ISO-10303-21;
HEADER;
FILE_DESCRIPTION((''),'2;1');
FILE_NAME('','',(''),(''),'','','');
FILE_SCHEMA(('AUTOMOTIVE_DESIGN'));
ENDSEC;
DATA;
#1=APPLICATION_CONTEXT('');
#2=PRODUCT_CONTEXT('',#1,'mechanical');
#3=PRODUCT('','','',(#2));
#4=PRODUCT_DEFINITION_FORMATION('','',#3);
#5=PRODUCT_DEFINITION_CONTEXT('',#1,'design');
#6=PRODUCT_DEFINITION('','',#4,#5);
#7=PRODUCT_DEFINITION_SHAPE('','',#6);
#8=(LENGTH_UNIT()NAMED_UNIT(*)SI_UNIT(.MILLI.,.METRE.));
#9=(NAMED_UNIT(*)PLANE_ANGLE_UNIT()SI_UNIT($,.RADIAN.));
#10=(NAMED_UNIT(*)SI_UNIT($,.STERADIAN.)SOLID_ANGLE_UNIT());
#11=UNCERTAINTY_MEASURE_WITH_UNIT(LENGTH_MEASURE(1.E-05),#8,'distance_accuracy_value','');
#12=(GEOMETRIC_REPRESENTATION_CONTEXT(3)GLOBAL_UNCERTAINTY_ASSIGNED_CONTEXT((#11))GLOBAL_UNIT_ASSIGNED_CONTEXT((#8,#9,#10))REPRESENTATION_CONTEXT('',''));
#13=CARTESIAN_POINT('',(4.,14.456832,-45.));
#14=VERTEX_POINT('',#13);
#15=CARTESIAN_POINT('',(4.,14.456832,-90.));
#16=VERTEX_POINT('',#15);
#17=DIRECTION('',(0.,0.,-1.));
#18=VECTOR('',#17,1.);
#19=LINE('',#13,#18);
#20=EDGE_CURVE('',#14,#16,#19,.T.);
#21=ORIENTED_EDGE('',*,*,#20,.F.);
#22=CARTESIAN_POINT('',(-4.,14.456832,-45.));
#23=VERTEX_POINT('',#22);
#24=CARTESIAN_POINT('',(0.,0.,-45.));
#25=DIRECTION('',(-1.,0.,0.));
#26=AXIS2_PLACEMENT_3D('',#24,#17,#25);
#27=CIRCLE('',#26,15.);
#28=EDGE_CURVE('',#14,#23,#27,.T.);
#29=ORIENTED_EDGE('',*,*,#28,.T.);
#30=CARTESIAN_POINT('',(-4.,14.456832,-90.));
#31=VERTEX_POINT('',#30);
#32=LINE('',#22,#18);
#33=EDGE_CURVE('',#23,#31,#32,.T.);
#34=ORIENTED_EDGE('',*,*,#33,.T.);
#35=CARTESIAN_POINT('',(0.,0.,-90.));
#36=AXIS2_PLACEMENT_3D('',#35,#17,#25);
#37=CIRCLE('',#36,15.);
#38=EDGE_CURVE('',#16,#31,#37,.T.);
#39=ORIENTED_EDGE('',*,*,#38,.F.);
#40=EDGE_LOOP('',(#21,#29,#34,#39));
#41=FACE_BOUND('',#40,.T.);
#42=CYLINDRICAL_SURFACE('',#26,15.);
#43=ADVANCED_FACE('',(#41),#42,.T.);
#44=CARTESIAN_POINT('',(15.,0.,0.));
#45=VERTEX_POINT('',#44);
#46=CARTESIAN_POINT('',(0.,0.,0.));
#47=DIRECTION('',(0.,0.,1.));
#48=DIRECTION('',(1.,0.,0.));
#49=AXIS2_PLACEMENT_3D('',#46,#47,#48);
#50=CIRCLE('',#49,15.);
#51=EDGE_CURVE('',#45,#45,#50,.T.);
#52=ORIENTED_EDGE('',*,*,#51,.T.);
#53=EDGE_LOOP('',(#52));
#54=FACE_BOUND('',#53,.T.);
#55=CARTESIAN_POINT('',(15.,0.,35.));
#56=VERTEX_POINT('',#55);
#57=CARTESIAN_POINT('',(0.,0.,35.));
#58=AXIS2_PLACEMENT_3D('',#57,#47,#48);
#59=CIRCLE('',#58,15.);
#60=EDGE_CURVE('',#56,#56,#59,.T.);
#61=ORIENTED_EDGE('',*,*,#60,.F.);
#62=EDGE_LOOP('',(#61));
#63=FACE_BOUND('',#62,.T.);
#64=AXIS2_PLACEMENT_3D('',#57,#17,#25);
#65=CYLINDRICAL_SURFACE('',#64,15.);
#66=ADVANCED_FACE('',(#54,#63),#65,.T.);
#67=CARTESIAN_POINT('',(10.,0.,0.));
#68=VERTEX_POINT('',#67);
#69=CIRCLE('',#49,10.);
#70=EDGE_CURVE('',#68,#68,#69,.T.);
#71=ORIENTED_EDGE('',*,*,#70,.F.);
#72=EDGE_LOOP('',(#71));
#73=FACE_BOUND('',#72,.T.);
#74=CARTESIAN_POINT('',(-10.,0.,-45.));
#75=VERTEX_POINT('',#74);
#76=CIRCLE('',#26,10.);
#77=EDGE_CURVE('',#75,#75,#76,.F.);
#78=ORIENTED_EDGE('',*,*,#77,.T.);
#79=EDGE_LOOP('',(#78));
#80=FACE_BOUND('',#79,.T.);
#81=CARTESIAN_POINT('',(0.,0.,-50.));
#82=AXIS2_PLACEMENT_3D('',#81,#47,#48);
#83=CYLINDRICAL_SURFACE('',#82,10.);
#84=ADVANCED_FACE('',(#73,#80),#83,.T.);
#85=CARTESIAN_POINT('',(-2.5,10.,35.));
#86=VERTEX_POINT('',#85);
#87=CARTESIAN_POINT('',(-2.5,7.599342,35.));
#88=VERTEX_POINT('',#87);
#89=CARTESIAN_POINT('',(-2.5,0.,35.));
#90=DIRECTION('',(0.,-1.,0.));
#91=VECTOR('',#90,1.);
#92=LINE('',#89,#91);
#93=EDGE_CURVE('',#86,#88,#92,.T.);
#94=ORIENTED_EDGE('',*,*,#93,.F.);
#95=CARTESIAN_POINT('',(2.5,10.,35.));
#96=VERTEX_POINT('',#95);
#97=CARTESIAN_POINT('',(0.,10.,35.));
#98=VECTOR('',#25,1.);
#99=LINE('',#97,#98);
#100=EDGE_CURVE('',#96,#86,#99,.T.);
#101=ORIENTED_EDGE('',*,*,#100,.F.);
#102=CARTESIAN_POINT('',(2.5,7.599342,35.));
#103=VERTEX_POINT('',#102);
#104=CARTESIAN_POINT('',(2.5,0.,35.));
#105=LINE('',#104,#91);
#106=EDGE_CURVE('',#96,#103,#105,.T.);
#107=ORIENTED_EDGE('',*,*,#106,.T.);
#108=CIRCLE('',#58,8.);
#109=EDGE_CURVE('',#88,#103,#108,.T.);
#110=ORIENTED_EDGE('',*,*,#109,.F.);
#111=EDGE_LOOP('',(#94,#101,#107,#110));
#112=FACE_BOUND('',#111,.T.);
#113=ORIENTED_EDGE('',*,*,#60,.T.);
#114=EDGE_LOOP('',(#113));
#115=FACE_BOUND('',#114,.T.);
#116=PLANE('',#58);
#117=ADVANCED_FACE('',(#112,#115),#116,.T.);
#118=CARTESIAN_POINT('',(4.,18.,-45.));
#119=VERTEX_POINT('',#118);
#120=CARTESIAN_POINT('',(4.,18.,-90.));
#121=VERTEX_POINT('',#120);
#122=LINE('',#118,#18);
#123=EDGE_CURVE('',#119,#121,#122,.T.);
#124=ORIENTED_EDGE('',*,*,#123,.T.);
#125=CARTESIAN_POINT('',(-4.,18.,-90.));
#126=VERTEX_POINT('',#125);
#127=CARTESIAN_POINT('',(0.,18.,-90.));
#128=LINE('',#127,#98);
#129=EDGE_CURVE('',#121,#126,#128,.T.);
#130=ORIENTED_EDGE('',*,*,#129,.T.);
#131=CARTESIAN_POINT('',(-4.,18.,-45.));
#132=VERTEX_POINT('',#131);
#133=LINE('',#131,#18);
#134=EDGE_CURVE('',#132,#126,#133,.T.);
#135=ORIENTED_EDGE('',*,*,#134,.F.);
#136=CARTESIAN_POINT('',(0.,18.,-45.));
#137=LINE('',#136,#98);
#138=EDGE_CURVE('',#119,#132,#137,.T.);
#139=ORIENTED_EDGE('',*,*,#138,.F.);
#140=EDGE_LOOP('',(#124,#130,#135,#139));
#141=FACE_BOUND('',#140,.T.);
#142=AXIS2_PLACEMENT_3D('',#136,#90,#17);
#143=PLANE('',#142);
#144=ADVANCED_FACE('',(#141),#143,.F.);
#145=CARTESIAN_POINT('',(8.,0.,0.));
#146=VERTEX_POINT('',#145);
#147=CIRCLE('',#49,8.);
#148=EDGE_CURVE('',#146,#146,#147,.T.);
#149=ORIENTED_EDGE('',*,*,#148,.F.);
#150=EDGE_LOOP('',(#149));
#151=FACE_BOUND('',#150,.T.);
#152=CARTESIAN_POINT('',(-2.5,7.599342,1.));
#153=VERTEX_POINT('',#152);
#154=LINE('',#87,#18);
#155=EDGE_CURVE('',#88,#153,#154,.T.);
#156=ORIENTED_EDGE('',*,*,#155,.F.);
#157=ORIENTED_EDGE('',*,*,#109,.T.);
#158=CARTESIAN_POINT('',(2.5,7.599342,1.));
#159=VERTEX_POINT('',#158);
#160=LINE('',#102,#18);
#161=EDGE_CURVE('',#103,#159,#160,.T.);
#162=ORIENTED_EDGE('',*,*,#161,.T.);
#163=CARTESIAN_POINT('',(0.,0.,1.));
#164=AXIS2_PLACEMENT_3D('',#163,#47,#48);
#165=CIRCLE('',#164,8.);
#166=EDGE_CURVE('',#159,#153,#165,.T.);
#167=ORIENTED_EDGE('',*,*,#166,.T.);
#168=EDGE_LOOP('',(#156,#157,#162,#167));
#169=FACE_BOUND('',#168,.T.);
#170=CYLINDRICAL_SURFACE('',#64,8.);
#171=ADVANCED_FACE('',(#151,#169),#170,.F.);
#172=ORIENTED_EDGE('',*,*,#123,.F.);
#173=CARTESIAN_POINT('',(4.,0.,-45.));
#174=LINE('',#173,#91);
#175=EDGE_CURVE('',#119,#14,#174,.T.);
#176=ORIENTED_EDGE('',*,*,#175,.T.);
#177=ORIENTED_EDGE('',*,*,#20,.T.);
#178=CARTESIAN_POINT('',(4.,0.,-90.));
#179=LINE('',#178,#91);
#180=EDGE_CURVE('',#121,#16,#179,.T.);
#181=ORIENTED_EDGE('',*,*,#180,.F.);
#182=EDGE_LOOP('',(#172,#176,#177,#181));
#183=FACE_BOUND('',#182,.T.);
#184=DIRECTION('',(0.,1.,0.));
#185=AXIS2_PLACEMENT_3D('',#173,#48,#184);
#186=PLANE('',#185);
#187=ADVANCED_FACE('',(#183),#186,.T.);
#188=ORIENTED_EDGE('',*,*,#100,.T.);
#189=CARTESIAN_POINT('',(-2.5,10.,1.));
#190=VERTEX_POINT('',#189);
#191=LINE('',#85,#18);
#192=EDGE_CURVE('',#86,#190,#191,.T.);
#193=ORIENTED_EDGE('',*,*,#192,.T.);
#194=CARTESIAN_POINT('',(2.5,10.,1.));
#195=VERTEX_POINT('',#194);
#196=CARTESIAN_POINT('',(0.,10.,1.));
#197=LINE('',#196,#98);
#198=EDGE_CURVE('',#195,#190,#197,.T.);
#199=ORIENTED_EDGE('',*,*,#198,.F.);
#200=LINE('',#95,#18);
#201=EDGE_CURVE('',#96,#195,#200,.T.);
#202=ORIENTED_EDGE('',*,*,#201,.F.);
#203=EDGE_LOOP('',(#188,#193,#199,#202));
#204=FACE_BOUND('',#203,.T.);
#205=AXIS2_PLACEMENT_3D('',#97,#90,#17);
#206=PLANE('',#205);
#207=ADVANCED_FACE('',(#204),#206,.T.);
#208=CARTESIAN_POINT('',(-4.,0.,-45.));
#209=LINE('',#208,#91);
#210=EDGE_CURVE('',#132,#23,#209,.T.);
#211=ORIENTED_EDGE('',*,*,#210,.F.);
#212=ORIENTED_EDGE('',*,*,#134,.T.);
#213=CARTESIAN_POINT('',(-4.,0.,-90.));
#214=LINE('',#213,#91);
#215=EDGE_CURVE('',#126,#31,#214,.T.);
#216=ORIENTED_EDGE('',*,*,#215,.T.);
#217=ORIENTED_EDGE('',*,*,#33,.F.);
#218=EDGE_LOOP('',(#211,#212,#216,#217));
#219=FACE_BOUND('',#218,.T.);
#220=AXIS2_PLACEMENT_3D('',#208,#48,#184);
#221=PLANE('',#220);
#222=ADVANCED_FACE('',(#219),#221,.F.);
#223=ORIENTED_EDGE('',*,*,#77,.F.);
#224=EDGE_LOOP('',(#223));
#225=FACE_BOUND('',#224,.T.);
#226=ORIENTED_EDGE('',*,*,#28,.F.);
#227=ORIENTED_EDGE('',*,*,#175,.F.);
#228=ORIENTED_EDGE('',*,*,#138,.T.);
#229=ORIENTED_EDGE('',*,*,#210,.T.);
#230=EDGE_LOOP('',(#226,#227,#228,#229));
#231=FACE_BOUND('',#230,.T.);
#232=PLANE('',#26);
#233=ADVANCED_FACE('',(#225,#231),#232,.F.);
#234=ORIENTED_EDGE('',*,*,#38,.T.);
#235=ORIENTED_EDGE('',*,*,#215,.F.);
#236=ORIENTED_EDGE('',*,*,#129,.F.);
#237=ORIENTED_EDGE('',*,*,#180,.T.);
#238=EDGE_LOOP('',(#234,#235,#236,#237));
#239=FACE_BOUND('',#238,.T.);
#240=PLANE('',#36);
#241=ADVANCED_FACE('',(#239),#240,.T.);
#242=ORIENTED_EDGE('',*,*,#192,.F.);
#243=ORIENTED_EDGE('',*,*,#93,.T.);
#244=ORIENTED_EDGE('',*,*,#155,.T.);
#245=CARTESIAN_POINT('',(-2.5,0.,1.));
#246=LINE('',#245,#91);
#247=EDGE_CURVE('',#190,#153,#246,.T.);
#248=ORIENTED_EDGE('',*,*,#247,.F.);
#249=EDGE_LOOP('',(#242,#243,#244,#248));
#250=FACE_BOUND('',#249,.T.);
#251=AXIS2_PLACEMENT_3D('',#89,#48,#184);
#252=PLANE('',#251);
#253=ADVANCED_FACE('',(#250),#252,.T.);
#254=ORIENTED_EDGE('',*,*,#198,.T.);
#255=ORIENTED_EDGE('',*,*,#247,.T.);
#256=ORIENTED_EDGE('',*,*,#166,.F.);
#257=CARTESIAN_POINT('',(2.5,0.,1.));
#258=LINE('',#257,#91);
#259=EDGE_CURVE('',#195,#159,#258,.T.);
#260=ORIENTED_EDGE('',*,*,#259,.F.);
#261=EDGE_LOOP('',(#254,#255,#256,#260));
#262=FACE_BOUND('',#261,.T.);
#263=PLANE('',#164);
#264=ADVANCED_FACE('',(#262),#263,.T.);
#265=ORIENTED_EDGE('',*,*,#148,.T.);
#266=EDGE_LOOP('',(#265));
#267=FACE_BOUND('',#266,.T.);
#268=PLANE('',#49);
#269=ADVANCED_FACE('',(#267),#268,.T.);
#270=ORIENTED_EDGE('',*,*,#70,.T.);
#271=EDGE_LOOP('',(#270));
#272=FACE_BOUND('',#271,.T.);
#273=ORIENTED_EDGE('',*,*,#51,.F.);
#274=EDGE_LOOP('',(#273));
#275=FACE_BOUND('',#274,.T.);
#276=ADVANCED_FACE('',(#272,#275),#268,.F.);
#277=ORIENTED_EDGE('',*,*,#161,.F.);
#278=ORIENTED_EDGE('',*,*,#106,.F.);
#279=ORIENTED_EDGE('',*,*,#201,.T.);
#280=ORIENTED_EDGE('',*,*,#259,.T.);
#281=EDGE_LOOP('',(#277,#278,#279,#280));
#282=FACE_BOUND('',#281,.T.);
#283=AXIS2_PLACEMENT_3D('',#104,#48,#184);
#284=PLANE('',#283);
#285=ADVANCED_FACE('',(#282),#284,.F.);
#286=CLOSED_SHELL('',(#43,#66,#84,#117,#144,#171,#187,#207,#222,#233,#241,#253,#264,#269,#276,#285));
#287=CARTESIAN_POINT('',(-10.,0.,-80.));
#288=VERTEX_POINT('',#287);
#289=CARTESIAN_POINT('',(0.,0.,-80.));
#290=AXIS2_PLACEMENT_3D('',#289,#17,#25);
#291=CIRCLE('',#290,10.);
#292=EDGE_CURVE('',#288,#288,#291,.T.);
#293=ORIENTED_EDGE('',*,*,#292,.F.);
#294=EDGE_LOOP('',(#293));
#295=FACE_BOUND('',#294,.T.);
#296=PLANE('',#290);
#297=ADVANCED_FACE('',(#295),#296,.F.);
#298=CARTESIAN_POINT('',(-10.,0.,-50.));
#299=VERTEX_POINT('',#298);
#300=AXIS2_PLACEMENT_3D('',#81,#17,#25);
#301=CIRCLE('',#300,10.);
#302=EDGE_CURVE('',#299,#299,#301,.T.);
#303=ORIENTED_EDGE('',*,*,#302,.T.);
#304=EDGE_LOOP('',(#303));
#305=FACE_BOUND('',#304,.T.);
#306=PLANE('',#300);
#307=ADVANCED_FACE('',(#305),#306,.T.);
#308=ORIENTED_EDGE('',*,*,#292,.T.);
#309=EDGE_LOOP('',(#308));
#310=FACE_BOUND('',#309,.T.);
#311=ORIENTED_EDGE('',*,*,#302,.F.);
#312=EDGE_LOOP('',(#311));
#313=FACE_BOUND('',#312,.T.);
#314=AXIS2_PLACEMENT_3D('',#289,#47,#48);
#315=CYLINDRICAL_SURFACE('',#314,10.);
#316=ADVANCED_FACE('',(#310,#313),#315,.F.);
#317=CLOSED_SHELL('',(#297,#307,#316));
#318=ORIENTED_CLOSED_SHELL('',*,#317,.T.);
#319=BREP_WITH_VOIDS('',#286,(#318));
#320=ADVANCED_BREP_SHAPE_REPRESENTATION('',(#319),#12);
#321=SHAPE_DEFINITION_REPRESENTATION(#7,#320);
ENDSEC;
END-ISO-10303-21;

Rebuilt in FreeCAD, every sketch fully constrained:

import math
import FreeCAD as App
import Part
import Sketcher

V = App.Vector

doc = App.newDocument("Part")
params = doc.addObject("Spreadsheet::Sheet", "Params")
for row, (alias, value) in enumerate([
    ("sketch1_diameter", "30 mm"),
    ("sketch1_radius", "8 mm"),
    ("sketch1_width", "5 mm"),
    ("pad1_length", "35 mm"),
    ("sketch2_radius", "8 mm"),
    ("sketch2_width", "5 mm"),
    ("pad2_length", "1 mm"),
    ("sketch3_diameter", "20 mm"),
    ("pad3_length", "50 mm"),
    ("sketch4_radius", "15 mm"),
    ("sketch4_width", "8 mm"),
    ("pad4_length", "40 mm"),
    ("pad4_length2", "5 mm"),
    ("sketch5_diameter", "20 mm"),
    ("pocket1_length", "30 mm"),
], start=1):
    params.set(f"A{row}", alias)
    params.set(f"B{row}", "=" + value)
    params.setAlias(f"B{row}", alias)

body = doc.addObject("PartDesign::Body", "Body")

sketch1 = body.newObject("Sketcher::SketchObject", "Sketch")
sketch1.AttachmentSupport = (doc.getObject("XY_Plane"), [""])
sketch1.MapMode = "FlatFace"
sketch1.addGeometry(Part.Circle(V(0, 0, 0), V(0, 0, 1), 15), False)
sketch1.addGeometry(Part.LineSegment(V(-2.5, 7.6, 0), V(-2.5, 10, 0)), False)
sketch1.addGeometry(Part.LineSegment(V(-2.5, 10, 0), V(2.5, 10, 0)), False)
sketch1.addGeometry(Part.LineSegment(V(2.5, 10, 0), V(2.5, 7.6, 0)), False)
sketch1.addGeometry(Part.ArcOfCircle(Part.Circle(V(0, 0, 0), V(0, 0, 1), 8), math.radians(0), math.radians(72)), False)
sketch1.addGeometry(Part.ArcOfCircle(Part.Circle(V(0, 0, 0), V(0, 0, 1), 8), math.radians(108), math.radians(360)), False)
sketch1.addConstraint(Sketcher.Constraint("Coincident", 1, 2, 2, 1))
sketch1.addConstraint(Sketcher.Constraint("Coincident", 2, 2, 3, 1))
sketch1.addConstraint(Sketcher.Constraint("Coincident", 3, 2, 4, 2))
sketch1.addConstraint(Sketcher.Constraint("Tangent", 4, 1, 5, 2))
sketch1.addConstraint(Sketcher.Constraint("Coincident", 5, 1, 1, 1))
sketch1.addConstraint(Sketcher.Constraint("Vertical", 1))
sketch1.addConstraint(Sketcher.Constraint("Horizontal", 2))
sketch1.addConstraint(Sketcher.Constraint("Vertical", 3))
sketch1.addConstraint(Sketcher.Constraint("Coincident", 0, 3, -1, 1))
sketch1.addConstraint(Sketcher.Constraint("Coincident", 4, 3, -1, 1))
sketch1.addConstraint(Sketcher.Constraint("Equal", 4, 5))
sketch1.addConstraint(Sketcher.Constraint("PointOnObject", 4, 1, -1))
sketch1.addConstraint(Sketcher.Constraint("Horizontal", 3, 2, 5, 1))
sketch1.addConstraint(Sketcher.Constraint("Diameter", 0, 30.0))
sketch1.addConstraint(Sketcher.Constraint("Radius", 4, 8.0))
sketch1.addConstraint(Sketcher.Constraint("DistanceX", 2, 1, 2, 2, 5.0))
sketch1.addConstraint(Sketcher.Constraint("DistanceY", -1, 1, 1, 2, 10.0))
sketch1.setExpression("Constraints[13]", "Params.sketch1_diameter")
sketch1.setExpression("Constraints[14]", "Params.sketch1_radius")
sketch1.setExpression("Constraints[15]", "Params.sketch1_width")
pad1 = body.newObject("PartDesign::Pad", "Pad")
pad1.Profile = sketch1
pad1.setExpression("Length", "Params.pad1_length")

sketch2 = body.newObject("Sketcher::SketchObject", "Sketch001")
sketch2.AttachmentSupport = (doc.getObject("XY_Plane"), [""])
sketch2.MapMode = "FlatFace"
sketch2.addGeometry(Part.LineSegment(V(2.5, 7.6, 0), V(2.5, 10, 0)), False)
sketch2.addGeometry(Part.LineSegment(V(2.5, 10, 0), V(-2.5, 10, 0)), False)
sketch2.addGeometry(Part.LineSegment(V(-2.5, 10, 0), V(-2.5, 7.6, 0)), False)
sketch2.addGeometry(Part.ArcOfCircle(Part.Circle(V(0, 0, 0), V(0, 0, 1), 8), math.radians(72), math.radians(108)), False)
sketch2.addConstraint(Sketcher.Constraint("Coincident", 0, 2, 1, 1))
sketch2.addConstraint(Sketcher.Constraint("Coincident", 1, 2, 2, 1))
sketch2.addConstraint(Sketcher.Constraint("Coincident", 2, 2, 3, 2))
sketch2.addConstraint(Sketcher.Constraint("Coincident", 3, 1, 0, 1))
sketch2.addConstraint(Sketcher.Constraint("Vertical", 0))
sketch2.addConstraint(Sketcher.Constraint("Horizontal", 1))
sketch2.addConstraint(Sketcher.Constraint("Vertical", 2))
sketch2.addConstraint(Sketcher.Constraint("Coincident", 3, 3, -1, 1))
sketch2.addConstraint(Sketcher.Constraint("Horizontal", 2, 2, 3, 1))
sketch2.addConstraint(Sketcher.Constraint("Radius", 3, 8.0))
sketch2.addConstraint(Sketcher.Constraint("DistanceX", 1, 2, 1, 1, 5.0))
sketch2.addConstraint(Sketcher.Constraint("DistanceY", -1, 1, 0, 2, 10.0))
sketch2.setExpression("Constraints[9]", "Params.sketch2_radius")
sketch2.setExpression("Constraints[10]", "Params.sketch2_width")
pad2 = body.newObject("PartDesign::Pad", "Pad001")
pad2.Profile = sketch2
pad2.setExpression("Length", "Params.pad2_length")

sketch3 = body.newObject("Sketcher::SketchObject", "Sketch002")
sketch3.AttachmentSupport = (doc.getObject("XY_Plane"), [""])
sketch3.MapMode = "FlatFace"
sketch3.addGeometry(Part.Circle(V(0, 0, 0), V(0, 0, 1), 10), False)
sketch3.addConstraint(Sketcher.Constraint("Coincident", 0, 3, -1, 1))
sketch3.addConstraint(Sketcher.Constraint("Diameter", 0, 20.0))
sketch3.setExpression("Constraints[1]", "Params.sketch3_diameter")
pad3 = body.newObject("PartDesign::Pad", "Pad002")
pad3.Profile = sketch3
pad3.setExpression("Length", "Params.pad3_length")
pad3.Reversed = True

sketch4 = body.newObject("Sketcher::SketchObject", "Sketch003")
sketch4.AttachmentSupport = (doc.getObject("XY_Plane"), [""])
sketch4.MapMode = "FlatFace"
sketch4.AttachmentOffset = App.Placement(V(0, 0, -50), App.Rotation())
sketch4.addGeometry(Part.ArcOfCircle(Part.Circle(V(0, 0, 0), V(0, 0, 1), 15), math.radians(105), math.radians(180)), False)
sketch4.addGeometry(Part.LineSegment(V(-4, 14.5, 0), V(-4, 18, 0)), False)
sketch4.addGeometry(Part.LineSegment(V(-4, 18, 0), V(4, 18, 0)), False)
sketch4.addGeometry(Part.LineSegment(V(4, 18, 0), V(4, 14.5, 0)), False)
sketch4.addGeometry(Part.ArcOfCircle(Part.Circle(V(0, 0, 0), V(0, 0, 1), 15), math.radians(-75), math.radians(75)), False)
sketch4.addGeometry(Part.ArcOfCircle(Part.Circle(V(0, 0, 0), V(0, 0, 1), 15), math.radians(-105), math.radians(-75)), False)
sketch4.addGeometry(Part.ArcOfCircle(Part.Circle(V(0, 0, 0), V(0, 0, 1), 15), math.radians(-180), math.radians(-105)), False)
sketch4.addConstraint(Sketcher.Constraint("Coincident", 0, 1, 1, 1))
sketch4.addConstraint(Sketcher.Constraint("Coincident", 1, 2, 2, 1))
sketch4.addConstraint(Sketcher.Constraint("Coincident", 2, 2, 3, 1))
sketch4.addConstraint(Sketcher.Constraint("Coincident", 3, 2, 4, 2))
sketch4.addConstraint(Sketcher.Constraint("Tangent", 4, 1, 5, 2))
sketch4.addConstraint(Sketcher.Constraint("Tangent", 5, 1, 6, 2))
sketch4.addConstraint(Sketcher.Constraint("Tangent", 6, 1, 0, 2))
sketch4.addConstraint(Sketcher.Constraint("Vertical", 1))
sketch4.addConstraint(Sketcher.Constraint("Horizontal", 2))
sketch4.addConstraint(Sketcher.Constraint("Vertical", 3))
sketch4.addConstraint(Sketcher.Constraint("Coincident", 0, 3, -1, 1))
sketch4.addConstraint(Sketcher.Constraint("Coincident", 4, 3, -1, 1))
sketch4.addConstraint(Sketcher.Constraint("Equal", 0, 4))
sketch4.addConstraint(Sketcher.Constraint("PointOnObject", 6, 1, -1))
sketch4.addConstraint(Sketcher.Constraint("Horizontal", 0, 1, 3, 2))
sketch4.addConstraint(Sketcher.Constraint("Horizontal", 4, 1, 5, 1))
sketch4.addConstraint(Sketcher.Constraint("Vertical", 3, 2, 4, 1))
sketch4.addConstraint(Sketcher.Constraint("Radius", 0, 15.0))
sketch4.addConstraint(Sketcher.Constraint("DistanceX", 2, 1, 2, 2, 8.0))
sketch4.addConstraint(Sketcher.Constraint("DistanceY", -1, 1, 1, 2, 18.0))
sketch4.setExpression("Constraints[17]", "Params.sketch4_radius")
sketch4.setExpression("Constraints[18]", "Params.sketch4_width")
pad4 = body.newObject("PartDesign::Pad", "Pad003")
pad4.Profile = sketch4
pad4.Type = "TwoLengths"
pad4.setExpression("Length", "Params.pad4_length")
pad4.setExpression("Length2", "Params.pad4_length2")
pad4.Reversed = True

sketch5 = body.newObject("Sketcher::SketchObject", "Sketch004")
sketch5.AttachmentSupport = (doc.getObject("XY_Plane"), [""])
sketch5.MapMode = "FlatFace"
sketch5.AttachmentOffset = App.Placement(V(0, 0, -50), App.Rotation())
sketch5.addGeometry(Part.Circle(V(0, 0, 0), V(0, 0, 1), 10), False)
sketch5.addConstraint(Sketcher.Constraint("Coincident", 0, 3, -1, 1))
sketch5.addConstraint(Sketcher.Constraint("Diameter", 0, 20.0))
sketch5.setExpression("Constraints[1]", "Params.sketch5_diameter")
pocket1 = body.newObject("PartDesign::Pocket", "Pocket")
pocket1.Profile = sketch5
pocket1.setExpression("Length", "Params.pocket1_length")

doc.recompute()
